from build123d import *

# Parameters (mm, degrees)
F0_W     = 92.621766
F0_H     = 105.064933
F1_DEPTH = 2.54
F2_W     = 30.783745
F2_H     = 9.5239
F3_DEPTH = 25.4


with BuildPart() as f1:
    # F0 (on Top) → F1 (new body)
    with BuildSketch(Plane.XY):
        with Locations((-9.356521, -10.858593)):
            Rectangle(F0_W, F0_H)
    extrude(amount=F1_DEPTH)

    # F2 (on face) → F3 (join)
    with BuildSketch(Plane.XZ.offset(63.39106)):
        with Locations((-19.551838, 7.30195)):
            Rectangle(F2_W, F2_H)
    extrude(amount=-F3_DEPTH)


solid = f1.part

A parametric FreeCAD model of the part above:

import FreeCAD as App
import Part
import Sketcher
from FreeCAD import Vector
Q = App.Units.Quantity

doc = App.newDocument("Part")
body = doc.addObject("PartDesign::Body", "Body")

# Sketch on XY plane
sketch1 = doc.addObject("Sketcher::SketchObject", "Sketch")
body.addObject(sketch1)
sketch1.AttachmentSupport = (doc.XY_Plane, [""])
sketch1.MapMode = "FlatFace"
sketch1.addGeometry([
    Part.LineSegment(Vector(-56, 42, 0), Vector(-56, -63, 0)),
    Part.LineSegment(Vector(-56, -63, 0), Vector(37, -63, 0)),
    Part.LineSegment(Vector(37, -63, 0), Vector(37, 42, 0)),
    Part.LineSegment(Vector(37, 42, 0), Vector(-56, 42, 0)),
], False)
sketch1.addConstraint([
    Sketcher.Constraint("Coincident", 0, 2, 1, 1),
    Sketcher.Constraint("Coincident", 1, 2, 2, 1),
    Sketcher.Constraint("Coincident", 2, 2, 3, 1),
    Sketcher.Constraint("Coincident", 3, 2, 0, 1),
    Sketcher.Constraint("Vertical", 0),
    Sketcher.Constraint("Horizontal", 1),
    Sketcher.Constraint("Vertical", 2),
    Sketcher.Constraint("Horizontal", 3),
    Sketcher.Constraint("DistanceX", 1, 1, 1, 2, 92.621766),
    Sketcher.Constraint("DistanceY", 0, 2, 0, 1, 105.064933),
    Sketcher.Constraint("DistanceY", 0, 2, -1, 1, 63.391059),
    Sketcher.Constraint("DistanceX", 0, 2, -1, 1, 55.667404),
])
pad1 = doc.addObject("PartDesign::Pad", "Pad")
body.addObject(pad1)
pad1.Profile = sketch1
pad1.Length = Q("0.1 in")

# Sketch on XZ plane
sketch2 = doc.addObject("Sketcher::SketchObject", "Sketch001")
body.addObject(sketch2)
sketch2.AttachmentSupport = (doc.XZ_Plane, [""])
sketch2.MapMode = "FlatFace"
sketch2.AttachmentOffset = App.Placement(Vector(0, 0, 63.39106), App.Rotation())
sketch2.addGeometry([
    Part.LineSegment(Vector(-35, 12, 0), Vector(-35, 3, 0)),
    Part.LineSegment(Vector(-35, 3, 0), Vector(-4, 3, 0)),
    Part.LineSegment(Vector(-4, 3, 0), Vector(-4, 12, 0)),
    Part.LineSegment(Vector(-4, 12, 0), Vector(-35, 12, 0)),
], False)
sketch2.addConstraint([
    Sketcher.Constraint("Coincident", 0, 2, 1, 1),
    Sketcher.Constraint("Coincident", 1, 2, 2, 1),
    Sketcher.Constraint("Coincident", 2, 2, 3, 1),
    Sketcher.Constraint("Coincident", 3, 2, 0, 1),
    Sketcher.Constraint("Vertical", 0),
    Sketcher.Constraint("Horizontal", 1),
    Sketcher.Constraint("Vertical", 2),
    Sketcher.Constraint("Horizontal", 3),
    Sketcher.Constraint("DistanceY", -1, 1, 0, 2, Q("0.1 in")),
    Sketcher.Constraint("DistanceY", 0, 2, 0, 1, 9.5239),
    Sketcher.Constraint("DistanceX", 1, 1, 1, 2, 30.783745),
    Sketcher.Constraint("DistanceX", 0, 2, -1, 1, 34.943711),
])
pad2 = doc.addObject("PartDesign::Pad", "Pad001")
body.addObject(pad2)
pad2.Profile = sketch2
pad2.Length = Q("1 in")
pad2.Reversed = True

doc.recompute()
